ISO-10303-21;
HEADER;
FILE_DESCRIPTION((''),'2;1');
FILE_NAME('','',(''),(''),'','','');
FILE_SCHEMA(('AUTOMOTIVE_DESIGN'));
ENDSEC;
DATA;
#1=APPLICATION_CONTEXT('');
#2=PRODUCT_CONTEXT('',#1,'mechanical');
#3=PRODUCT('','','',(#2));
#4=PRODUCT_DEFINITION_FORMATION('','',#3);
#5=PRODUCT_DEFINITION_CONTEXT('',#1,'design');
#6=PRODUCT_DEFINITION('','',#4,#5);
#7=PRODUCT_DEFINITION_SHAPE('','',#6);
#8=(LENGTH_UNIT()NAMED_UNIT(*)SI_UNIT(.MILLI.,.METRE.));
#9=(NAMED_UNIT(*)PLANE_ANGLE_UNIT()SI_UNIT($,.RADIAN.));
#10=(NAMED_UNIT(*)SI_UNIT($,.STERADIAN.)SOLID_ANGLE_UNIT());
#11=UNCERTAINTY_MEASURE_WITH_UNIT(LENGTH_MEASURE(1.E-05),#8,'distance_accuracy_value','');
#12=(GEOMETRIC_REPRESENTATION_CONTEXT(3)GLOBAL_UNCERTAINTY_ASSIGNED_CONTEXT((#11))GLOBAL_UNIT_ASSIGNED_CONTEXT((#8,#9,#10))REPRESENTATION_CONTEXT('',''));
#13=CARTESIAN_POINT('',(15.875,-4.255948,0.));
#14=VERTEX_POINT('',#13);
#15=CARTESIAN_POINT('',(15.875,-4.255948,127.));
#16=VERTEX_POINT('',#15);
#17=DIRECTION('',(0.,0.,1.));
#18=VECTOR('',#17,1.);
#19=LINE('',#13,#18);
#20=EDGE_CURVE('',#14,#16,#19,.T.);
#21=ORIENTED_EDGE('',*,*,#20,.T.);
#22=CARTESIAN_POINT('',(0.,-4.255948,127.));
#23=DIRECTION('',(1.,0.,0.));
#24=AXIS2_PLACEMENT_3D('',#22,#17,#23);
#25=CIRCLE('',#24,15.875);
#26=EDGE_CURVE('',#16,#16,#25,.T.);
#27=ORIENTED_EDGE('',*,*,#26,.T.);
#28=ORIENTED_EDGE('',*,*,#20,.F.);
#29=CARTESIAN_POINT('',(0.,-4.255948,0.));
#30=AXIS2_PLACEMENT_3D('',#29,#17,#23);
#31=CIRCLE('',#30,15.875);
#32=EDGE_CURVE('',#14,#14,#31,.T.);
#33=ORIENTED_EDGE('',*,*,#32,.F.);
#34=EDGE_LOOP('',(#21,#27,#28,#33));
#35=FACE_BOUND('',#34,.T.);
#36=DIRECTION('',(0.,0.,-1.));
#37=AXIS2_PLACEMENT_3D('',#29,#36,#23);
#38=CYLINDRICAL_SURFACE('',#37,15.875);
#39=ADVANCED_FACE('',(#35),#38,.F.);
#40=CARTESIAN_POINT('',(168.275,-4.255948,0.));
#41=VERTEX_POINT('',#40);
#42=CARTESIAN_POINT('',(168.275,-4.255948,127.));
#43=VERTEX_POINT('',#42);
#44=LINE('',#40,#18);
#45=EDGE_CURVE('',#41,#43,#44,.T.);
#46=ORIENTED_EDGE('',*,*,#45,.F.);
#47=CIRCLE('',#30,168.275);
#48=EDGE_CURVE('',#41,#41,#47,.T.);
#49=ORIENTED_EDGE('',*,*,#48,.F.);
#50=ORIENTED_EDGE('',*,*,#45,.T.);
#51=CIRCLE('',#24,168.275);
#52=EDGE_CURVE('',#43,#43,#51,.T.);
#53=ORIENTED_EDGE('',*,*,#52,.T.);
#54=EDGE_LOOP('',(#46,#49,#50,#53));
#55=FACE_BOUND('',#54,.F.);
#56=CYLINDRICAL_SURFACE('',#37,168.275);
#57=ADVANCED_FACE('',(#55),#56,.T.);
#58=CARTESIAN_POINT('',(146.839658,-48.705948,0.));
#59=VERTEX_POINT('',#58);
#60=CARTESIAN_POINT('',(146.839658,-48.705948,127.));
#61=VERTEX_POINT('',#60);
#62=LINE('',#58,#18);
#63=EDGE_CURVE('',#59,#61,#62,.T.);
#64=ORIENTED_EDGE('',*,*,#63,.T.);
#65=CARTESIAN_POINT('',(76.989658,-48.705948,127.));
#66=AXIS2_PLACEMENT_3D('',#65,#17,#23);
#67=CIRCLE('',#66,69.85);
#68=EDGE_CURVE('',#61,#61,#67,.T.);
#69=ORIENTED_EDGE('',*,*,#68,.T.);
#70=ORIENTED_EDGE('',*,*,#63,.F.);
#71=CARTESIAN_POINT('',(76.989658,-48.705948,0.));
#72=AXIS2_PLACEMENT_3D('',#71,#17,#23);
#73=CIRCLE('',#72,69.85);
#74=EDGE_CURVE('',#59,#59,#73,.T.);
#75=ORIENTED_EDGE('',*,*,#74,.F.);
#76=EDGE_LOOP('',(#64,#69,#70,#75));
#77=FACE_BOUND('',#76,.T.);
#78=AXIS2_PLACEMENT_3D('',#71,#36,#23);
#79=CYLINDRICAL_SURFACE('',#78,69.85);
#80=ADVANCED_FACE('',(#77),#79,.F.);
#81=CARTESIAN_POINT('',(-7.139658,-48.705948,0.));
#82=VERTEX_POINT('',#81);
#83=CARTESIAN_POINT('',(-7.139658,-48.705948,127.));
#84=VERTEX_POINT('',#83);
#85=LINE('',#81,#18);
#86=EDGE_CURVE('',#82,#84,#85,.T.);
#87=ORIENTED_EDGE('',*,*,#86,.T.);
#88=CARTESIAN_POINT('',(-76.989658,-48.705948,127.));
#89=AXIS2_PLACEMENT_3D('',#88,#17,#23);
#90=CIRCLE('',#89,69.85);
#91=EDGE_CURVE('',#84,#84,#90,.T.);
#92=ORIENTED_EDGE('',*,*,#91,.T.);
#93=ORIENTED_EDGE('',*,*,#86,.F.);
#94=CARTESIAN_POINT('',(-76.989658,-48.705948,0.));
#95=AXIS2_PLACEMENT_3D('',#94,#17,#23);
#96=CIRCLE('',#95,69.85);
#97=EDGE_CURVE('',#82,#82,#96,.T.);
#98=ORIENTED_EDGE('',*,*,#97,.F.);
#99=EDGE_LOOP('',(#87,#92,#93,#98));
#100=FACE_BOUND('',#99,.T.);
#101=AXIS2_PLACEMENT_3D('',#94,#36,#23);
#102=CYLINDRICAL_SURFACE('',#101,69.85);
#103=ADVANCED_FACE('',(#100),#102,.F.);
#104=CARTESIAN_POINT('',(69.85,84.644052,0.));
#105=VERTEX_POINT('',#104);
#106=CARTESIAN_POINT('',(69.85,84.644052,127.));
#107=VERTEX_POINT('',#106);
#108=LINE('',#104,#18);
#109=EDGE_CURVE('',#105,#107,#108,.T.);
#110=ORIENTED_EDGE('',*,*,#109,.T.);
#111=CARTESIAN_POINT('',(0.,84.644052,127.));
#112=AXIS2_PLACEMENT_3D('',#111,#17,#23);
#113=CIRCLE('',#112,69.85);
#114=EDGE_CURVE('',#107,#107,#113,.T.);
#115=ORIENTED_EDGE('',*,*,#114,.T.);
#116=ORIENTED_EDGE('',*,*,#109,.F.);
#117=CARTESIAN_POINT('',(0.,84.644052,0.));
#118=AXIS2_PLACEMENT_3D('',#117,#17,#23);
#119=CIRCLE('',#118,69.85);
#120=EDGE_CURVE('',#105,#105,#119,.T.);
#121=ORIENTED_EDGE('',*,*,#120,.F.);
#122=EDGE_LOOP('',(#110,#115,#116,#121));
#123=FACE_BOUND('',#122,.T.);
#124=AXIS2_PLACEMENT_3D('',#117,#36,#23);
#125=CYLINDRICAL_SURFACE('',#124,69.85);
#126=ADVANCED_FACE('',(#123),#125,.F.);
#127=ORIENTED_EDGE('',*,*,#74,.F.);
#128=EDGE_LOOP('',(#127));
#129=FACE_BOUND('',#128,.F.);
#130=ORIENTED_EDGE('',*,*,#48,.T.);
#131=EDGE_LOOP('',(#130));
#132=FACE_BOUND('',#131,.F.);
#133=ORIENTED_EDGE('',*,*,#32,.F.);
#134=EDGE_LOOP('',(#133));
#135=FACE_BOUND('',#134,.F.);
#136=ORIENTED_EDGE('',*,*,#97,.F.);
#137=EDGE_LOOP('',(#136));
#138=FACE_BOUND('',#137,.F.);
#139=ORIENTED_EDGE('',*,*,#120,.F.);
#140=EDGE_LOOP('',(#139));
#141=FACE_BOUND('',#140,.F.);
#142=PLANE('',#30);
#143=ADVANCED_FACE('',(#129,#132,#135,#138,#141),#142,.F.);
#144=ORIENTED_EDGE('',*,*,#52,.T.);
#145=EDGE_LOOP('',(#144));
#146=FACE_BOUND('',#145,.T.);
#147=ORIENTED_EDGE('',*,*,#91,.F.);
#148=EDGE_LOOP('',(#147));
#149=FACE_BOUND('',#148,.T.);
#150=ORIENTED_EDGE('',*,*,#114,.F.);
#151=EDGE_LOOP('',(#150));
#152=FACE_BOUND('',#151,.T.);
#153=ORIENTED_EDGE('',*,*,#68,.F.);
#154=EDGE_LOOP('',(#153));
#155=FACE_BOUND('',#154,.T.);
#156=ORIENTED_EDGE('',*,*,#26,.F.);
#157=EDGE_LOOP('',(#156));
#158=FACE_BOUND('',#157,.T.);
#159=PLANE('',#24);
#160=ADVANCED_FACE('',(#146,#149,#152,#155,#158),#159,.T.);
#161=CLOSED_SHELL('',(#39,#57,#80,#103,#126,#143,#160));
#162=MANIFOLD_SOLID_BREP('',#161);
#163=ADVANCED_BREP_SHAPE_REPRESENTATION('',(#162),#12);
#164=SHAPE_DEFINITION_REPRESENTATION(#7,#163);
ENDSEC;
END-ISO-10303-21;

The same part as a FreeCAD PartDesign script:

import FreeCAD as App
import Part
import Sketcher
Q = App.Units.Quantity

doc = App.newDocument("Part")
body = doc.addObject("PartDesign::Body", "Body")

# Sketch on XY plane
sketch1 = doc.addObject("Sketcher::SketchObject", "Sketch")
body.addObject(sketch1)
sketch1.AttachmentSupport = (doc.XY_Plane, [""])
sketch1.MapMode = "FlatFace"
sketch1.addGeometry([
    Part.Circle(App.Vector(0, -4.255948, 0), App.Vector(0, 0, 1), 168.275),  # 0
    Part.Circle(App.Vector(-76.989658, -48.705948, 0), App.Vector(0, 0, 1), 69.85),  # 1
    Part.Circle(App.Vector(0, -4.255948, 0), App.Vector(0, 0, 1), 15.875),  # 2
    Part.Circle(App.Vector(76.989658, -48.705948, 0), App.Vector(0, 0, 1), 69.85),  # 3
    Part.Circle(App.Vector(0, 84.644052, 0), App.Vector(0, 0, 1), 69.85),  # 4
], False)
sketch1.addConstraint([
    Sketcher.Constraint("Coincident", 2, 3, 0, 3),
    Sketcher.Constraint("Equal", 1, 3),
    Sketcher.Constraint("Equal", 3, 4),
    Sketcher.Constraint("Symmetric", 1, 3, 3, 3, -2),
    Sketcher.Constraint("PointOnObject", 0, 3, -2),
    Sketcher.Constraint("PointOnObject", 4, 3, -2),
    Sketcher.Constraint("Diameter", 1, Q("5.5 in")),
    Sketcher.Constraint("Diameter", 0, Q("13.25 in")),
    Sketcher.Constraint("Diameter", 2, Q("1.25 in")),
    Sketcher.Constraint("DistanceY", 0, 3, 4, 3, Q("3.5 in")),
    Sketcher.Constraint("DistanceY", 1, 3, 0, 3, Q("1.75 in")),
    Sketcher.Constraint("DistanceX", 1, 3, -1, 1, Q("76.989658 mm")),
    Sketcher.Constraint("DistanceY", 0, 3, -1, 1, Q("4.255948 mm")),
])
pad1 = doc.addObject("PartDesign::Pad", "Pad")
body.addObject(pad1)
pad1.Profile = sketch1
pad1.Length = Q("5 in")

doc.recompute()
